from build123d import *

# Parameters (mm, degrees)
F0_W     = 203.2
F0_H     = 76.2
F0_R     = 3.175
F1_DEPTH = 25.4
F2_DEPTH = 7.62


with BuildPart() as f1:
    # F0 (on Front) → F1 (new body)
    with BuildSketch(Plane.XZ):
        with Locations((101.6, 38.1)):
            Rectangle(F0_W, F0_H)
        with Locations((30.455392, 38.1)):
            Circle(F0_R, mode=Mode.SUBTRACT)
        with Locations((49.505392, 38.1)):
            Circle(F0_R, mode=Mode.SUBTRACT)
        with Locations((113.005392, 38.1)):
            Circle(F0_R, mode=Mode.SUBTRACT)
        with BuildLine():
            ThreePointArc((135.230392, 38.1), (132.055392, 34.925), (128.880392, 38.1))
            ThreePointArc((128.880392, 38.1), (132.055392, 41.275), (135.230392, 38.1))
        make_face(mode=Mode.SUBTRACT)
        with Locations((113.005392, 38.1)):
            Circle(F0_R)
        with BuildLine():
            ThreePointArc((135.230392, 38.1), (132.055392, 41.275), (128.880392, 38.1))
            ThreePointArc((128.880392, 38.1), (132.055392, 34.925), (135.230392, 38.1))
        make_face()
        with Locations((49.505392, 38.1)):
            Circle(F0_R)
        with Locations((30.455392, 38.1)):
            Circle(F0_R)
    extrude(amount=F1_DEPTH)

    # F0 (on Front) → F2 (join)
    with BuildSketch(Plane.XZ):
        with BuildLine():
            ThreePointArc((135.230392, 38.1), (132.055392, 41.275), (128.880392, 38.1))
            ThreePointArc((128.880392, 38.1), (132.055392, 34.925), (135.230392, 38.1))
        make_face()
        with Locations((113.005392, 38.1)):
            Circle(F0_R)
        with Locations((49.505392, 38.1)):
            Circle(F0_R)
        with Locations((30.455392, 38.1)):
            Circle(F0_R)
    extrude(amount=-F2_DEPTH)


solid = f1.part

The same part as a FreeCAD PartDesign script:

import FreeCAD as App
import Part
import Sketcher

V = App.Vector
Q = App.Units.Quantity

doc = App.newDocument("Part")
body = doc.addObject("PartDesign::Body", "Body")

# Sketch on XZ plane
sketch1 = doc.addObject("Sketcher::SketchObject", "Sketch")
body.addObject(sketch1)
sketch1.AttachmentSupport = (doc.XZ_Plane, [""])
sketch1.MapMode = "FlatFace"
sketch1.addGeometry([
    Part.LineSegment(V(0, 76, 0), V(0, 0, 0)),
    Part.LineSegment(V(0, 0, 0), V(203, 0, 0)),
    Part.LineSegment(V(203, 0, 0), V(203, 76, 0)),
    Part.LineSegment(V(203, 76, 0), V(0, 76, 0)),
], False)
sketch1.addConstraint([
    Sketcher.Constraint("Coincident", 0, 2, 1, 1),
    Sketcher.Constraint("Coincident", 1, 2, 2, 1),
    Sketcher.Constraint("Coincident", 2, 2, 3, 1),
    Sketcher.Constraint("Coincident", 3, 2, 0, 1),
    Sketcher.Constraint("Vertical", 0),
    Sketcher.Constraint("Horizontal", 1),
    Sketcher.Constraint("Vertical", 2),
    Sketcher.Constraint("Horizontal", 3),
    Sketcher.Constraint("Coincident", 0, 2, -1, 1),
    Sketcher.Constraint("DistanceX", 1, 1, 1, 2, Q("8 in")),
    Sketcher.Constraint("DistanceY", 0, 2, 0, 1, Q("3 in")),
])
pad1 = doc.addObject("PartDesign::Pad", "Pad")
body.addObject(pad1)
pad1.Profile = sketch1
pad1.Length = Q("1 in")

# Sketch on XZ plane
sketch2 = doc.addObject("Sketcher::SketchObject", "Sketch001")
body.addObject(sketch2)
sketch2.AttachmentSupport = (doc.XZ_Plane, [""])
sketch2.MapMode = "FlatFace"
sketch2.addGeometry([
    Part.Circle(V(132.1, 38.1, 0), V(0, 0, 1), 3.2),
    Part.Circle(V(113, 38.1, 0), V(0, 0, 1), 3.2),
    Part.Circle(V(49.5, 38.1, 0), V(0, 0, 1), 3.2),
    Part.Circle(V(30.5, 38.1, 0), V(0, 0, 1), 3.2),
], False)
sketch2.addConstraint([
    Sketcher.Constraint("Equal", 0, 1),
    Sketcher.Constraint("Equal", 1, 2),
    Sketcher.Constraint("Equal", 2, 3),
    Sketcher.Constraint("Horizontal", 0, 3, 1, 3),
    Sketcher.Constraint("Horizontal", 1, 3, 2, 3),
    Sketcher.Constraint("Horizontal", 2, 3, 3, 3),
    Sketcher.Constraint("Diameter", 0, Q("0.25 in")),
    Sketcher.Constraint("DistanceX", 3, 3, 0, 3, Q("4 in")),
    Sketcher.Constraint("DistanceY", -1, 1, 0, 3, Q("1.5 in")),
    Sketcher.Constraint("DistanceX", 2, 3, 1, 3, Q("2.5 in")),
    Sketcher.Constraint("DistanceX", 1, 3, 0, 3, Q("0.75 in")),
    Sketcher.Constraint("DistanceX", -1, 1, 1, 3, 113.005392),
])
pad2 = doc.addObject("PartDesign::Pad", "Pad001")
body.addObject(pad2)
pad2.Profile = sketch2
pad2.Length = Q("0.3 in")
pad2.Reversed = True

doc.recompute()
